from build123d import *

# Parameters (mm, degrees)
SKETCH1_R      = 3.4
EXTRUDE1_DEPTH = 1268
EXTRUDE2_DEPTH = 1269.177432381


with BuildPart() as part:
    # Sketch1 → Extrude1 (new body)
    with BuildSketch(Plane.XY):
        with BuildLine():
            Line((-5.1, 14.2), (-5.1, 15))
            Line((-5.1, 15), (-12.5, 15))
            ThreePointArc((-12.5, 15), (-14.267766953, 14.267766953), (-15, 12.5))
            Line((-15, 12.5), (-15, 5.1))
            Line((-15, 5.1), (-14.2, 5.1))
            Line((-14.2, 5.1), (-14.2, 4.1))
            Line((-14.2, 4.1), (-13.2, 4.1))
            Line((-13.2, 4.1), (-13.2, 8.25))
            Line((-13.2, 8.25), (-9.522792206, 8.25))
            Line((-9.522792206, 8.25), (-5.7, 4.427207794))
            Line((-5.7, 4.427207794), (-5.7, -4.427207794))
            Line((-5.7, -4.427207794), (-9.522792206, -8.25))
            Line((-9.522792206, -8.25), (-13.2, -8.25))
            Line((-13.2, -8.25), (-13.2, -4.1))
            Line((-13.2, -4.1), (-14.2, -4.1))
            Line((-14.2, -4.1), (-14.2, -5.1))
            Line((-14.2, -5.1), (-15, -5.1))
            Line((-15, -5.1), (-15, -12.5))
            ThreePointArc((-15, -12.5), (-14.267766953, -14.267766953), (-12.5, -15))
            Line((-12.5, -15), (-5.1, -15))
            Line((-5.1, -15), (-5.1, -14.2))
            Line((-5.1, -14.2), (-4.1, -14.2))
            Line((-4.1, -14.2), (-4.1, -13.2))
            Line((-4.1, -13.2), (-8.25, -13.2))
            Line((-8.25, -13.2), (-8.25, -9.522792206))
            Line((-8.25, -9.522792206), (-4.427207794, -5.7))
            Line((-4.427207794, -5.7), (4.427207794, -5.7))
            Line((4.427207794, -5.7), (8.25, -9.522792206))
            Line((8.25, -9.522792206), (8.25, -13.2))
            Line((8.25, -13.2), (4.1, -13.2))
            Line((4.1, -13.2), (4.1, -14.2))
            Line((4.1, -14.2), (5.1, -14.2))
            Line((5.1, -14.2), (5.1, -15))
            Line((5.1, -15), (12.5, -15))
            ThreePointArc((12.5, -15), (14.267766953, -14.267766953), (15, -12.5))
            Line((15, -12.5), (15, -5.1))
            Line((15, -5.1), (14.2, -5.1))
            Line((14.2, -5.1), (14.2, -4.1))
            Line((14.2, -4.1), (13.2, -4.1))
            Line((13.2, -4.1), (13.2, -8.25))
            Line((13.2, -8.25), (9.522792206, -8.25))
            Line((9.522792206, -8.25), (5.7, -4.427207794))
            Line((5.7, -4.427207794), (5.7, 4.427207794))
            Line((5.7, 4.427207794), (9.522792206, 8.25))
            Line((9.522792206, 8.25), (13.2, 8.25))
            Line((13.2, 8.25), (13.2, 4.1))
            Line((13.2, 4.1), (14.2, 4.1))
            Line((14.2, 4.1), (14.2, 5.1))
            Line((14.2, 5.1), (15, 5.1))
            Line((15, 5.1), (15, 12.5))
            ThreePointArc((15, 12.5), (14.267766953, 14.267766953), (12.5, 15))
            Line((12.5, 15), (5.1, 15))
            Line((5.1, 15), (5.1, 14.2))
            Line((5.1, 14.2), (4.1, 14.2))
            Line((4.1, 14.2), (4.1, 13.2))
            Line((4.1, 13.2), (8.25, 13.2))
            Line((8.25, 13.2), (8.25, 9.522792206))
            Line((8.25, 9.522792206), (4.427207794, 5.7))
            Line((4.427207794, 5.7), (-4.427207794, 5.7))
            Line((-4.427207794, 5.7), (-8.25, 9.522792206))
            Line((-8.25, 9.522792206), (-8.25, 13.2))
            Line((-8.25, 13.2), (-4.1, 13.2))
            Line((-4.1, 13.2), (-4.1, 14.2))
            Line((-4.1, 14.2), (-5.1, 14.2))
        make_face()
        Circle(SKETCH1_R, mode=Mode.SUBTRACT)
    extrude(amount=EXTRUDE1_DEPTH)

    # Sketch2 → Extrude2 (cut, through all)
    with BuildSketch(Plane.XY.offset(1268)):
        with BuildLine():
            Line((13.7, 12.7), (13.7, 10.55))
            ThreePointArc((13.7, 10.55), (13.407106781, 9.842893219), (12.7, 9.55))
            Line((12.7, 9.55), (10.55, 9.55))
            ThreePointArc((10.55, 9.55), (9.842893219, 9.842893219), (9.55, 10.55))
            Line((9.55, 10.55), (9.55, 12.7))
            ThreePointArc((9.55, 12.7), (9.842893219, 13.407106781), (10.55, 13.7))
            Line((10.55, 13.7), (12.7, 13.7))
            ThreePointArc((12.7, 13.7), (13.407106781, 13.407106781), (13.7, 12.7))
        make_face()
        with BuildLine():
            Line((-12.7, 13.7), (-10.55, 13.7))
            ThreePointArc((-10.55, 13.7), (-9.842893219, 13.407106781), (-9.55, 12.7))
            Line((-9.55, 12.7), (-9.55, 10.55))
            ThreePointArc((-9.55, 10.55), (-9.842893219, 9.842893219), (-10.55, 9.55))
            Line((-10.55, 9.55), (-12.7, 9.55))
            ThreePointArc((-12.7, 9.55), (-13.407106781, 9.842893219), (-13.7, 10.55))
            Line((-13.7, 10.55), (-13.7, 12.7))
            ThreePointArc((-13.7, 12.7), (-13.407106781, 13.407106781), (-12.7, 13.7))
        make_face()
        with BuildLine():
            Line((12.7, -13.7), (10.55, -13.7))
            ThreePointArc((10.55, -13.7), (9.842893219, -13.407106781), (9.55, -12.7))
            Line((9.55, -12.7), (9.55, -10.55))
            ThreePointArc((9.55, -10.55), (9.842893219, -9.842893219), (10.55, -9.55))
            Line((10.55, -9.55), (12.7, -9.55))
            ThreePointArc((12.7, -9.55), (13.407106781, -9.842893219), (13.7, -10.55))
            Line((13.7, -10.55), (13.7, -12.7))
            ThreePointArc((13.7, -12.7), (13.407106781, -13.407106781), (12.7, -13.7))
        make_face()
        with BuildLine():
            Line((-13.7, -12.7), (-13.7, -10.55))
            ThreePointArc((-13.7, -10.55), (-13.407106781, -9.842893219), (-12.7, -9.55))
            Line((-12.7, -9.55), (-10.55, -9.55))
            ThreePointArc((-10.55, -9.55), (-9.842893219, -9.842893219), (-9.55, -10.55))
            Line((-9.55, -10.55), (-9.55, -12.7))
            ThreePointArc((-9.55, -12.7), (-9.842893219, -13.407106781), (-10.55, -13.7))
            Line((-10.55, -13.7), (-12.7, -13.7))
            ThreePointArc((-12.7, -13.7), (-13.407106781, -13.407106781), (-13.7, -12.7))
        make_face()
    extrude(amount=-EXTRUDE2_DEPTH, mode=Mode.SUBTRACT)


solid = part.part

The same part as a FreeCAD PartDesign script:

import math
import FreeCAD as App
import Part
import Sketcher
from FreeCAD import Vector

doc = App.newDocument("Part")
body = doc.addObject("PartDesign::Body", "Body")

sketch1 = body.newObject("Sketcher::SketchObject", "Sketch")
sketch1.AttachmentSupport = (doc.getObject("XY_Plane"), [""])
sketch1.MapMode = "FlatFace"
sketch1.addGeometry([
    Part.LineSegment(Vector(-5.1, 14.2, 0), Vector(-5.1, 15, 0)),
    Part.LineSegment(Vector(-5.1, 15, 0), Vector(-12.5, 15, 0)),
    Part.ArcOfCircle(Part.Circle(Vector(-12.5, 12.5, 0), Vector(0, 0, 1), 2.5), math.radians(90), math.radians(180)),
    Part.LineSegment(Vector(-15, 12.5, 0), Vector(-15, 5.1, 0)),
    Part.LineSegment(Vector(-15, 5.1, 0), Vector(-14.2, 5.1, 0)),
    Part.LineSegment(Vector(-14.2, 5.1, 0), Vector(-14.2, 4.1, 0)),
    Part.LineSegment(Vector(-14.2, 4.1, 0), Vector(-13.2, 4.1, 0)),
    Part.LineSegment(Vector(-13.2, 4.1, 0), Vector(-13.2, 8.2, 0)),
    Part.LineSegment(Vector(-13.2, 8.2, 0), Vector(-9.5, 8.2, 0)),
    Part.LineSegment(Vector(-9.5, 8.2, 0), Vector(-5.7, 4.4, 0)),
    Part.LineSegment(Vector(-5.7, 4.4, 0), Vector(-5.7, -4.4, 0)),
    Part.LineSegment(Vector(-5.7, -4.4, 0), Vector(-9.5, -8.2, 0)),
    Part.LineSegment(Vector(-9.5, -8.2, 0), Vector(-13.2, -8.2, 0)),
    Part.LineSegment(Vector(-13.2, -8.2, 0), Vector(-13.2, -4.1, 0)),
    Part.LineSegment(Vector(-13.2, -4.1, 0), Vector(-14.2, -4.1, 0)),
    Part.LineSegment(Vector(-14.2, -4.1, 0), Vector(-14.2, -5.1, 0)),
    Part.LineSegment(Vector(-14.2, -5.1, 0), Vector(-15, -5.1, 0)),
    Part.LineSegment(Vector(-15, -5.1, 0), Vector(-15, -12.5, 0)),
    Part.ArcOfCircle(Part.Circle(Vector(-12.5, -12.5, 0), Vector(0, 0, 1), 2.5), math.radians(180), math.radians(270)),
    Part.LineSegment(Vector(-12.5, -15, 0), Vector(-5.1, -15, 0)),
    Part.LineSegment(Vector(-5.1, -15, 0), Vector(-5.1, -14.2, 0)),
    Part.LineSegment(Vector(-5.1, -14.2, 0), Vector(-4.1, -14.2, 0)),
    Part.LineSegment(Vector(-4.1, -14.2, 0), Vector(-4.1, -13.2, 0)),
    Part.LineSegment(Vector(-4.1, -13.2, 0), Vector(-8.2, -13.2, 0)),
    Part.LineSegment(Vector(-8.2, -13.2, 0), Vector(-8.2, -9.5, 0)),
    Part.LineSegment(Vector(-8.2, -9.5, 0), Vector(-4.4, -5.7, 0)),
    Part.LineSegment(Vector(-4.4, -5.7, 0), Vector(4.4, -5.7, 0)),
    Part.LineSegment(Vector(4.4, -5.7, 0), Vector(8.2, -9.5, 0)),
    Part.LineSegment(Vector(8.2, -9.5, 0), Vector(8.2, -13.2, 0)),
    Part.LineSegment(Vector(8.2, -13.2, 0), Vector(4.1, -13.2, 0)),
    Part.LineSegment(Vector(4.1, -13.2, 0), Vector(4.1, -14.2, 0)),
    Part.LineSegment(Vector(4.1, -14.2, 0), Vector(5.1, -14.2, 0)),
    Part.LineSegment(Vector(5.1, -14.2, 0), Vector(5.1, -15, 0)),
    Part.LineSegment(Vector(5.1, -15, 0), Vector(12.5, -15, 0)),
    Part.ArcOfCircle(Part.Circle(Vector(12.5, -12.5, 0), Vector(0, 0, 1), 2.5), math.radians(-90), math.radians(0)),
    Part.LineSegment(Vector(15, -12.5, 0), Vector(15, -5.1, 0)),
    Part.LineSegment(Vector(15, -5.1, 0), Vector(14.2, -5.1, 0)),
    Part.LineSegment(Vector(14.2, -5.1, 0), Vector(14.2, -4.1, 0)),
    Part.LineSegment(Vector(14.2, -4.1, 0), Vector(13.2, -4.1, 0)),
    Part.LineSegment(Vector(13.2, -4.1, 0), Vector(13.2, -8.2, 0)),
    Part.LineSegment(Vector(13.2, -8.2, 0), Vector(9.5, -8.2, 0)),
    Part.LineSegment(Vector(9.5, -8.2, 0), Vector(5.7, -4.4, 0)),
    Part.LineSegment(Vector(5.7, -4.4, 0), Vector(5.7, 4.4, 0)),
    Part.LineSegment(Vector(5.7, 4.4, 0), Vector(9.5, 8.2, 0)),
    Part.LineSegment(Vector(9.5, 8.2, 0), Vector(13.2, 8.2, 0)),
    Part.LineSegment(Vector(13.2, 8.2, 0), Vector(13.2, 4.1, 0)),
    Part.LineSegment(Vector(13.2, 4.1, 0), Vector(14.2, 4.1, 0)),
    Part.LineSegment(Vector(14.2, 4.1, 0), Vector(14.2, 5.1, 0)),
    Part.LineSegment(Vector(14.2, 5.1, 0), Vector(15, 5.1, 0)),
    Part.LineSegment(Vector(15, 5.1, 0), Vector(15, 12.5, 0)),
    Part.ArcOfCircle(Part.Circle(Vector(12.5, 12.5, 0), Vector(0, 0, 1), 2.5), math.radians(0), math.radians(90)),
    Part.LineSegment(Vector(12.5, 15, 0), Vector(5.1, 15, 0)),
    Part.LineSegment(Vector(5.1, 15, 0), Vector(5.1, 14.2, 0)),
    Part.LineSegment(Vector(5.1, 14.2, 0), Vector(4.1, 14.2, 0)),
    Part.LineSegment(Vector(4.1, 14.2, 0), Vector(4.1, 13.2, 0)),
    Part.LineSegment(Vector(4.1, 13.2, 0), Vector(8.2, 13.2, 0)),
    Part.LineSegment(Vector(8.2, 13.2, 0), Vector(8.2, 9.5, 0)),
    Part.LineSegment(Vector(8.2, 9.5, 0), Vector(4.4, 5.7, 0)),
    Part.LineSegment(Vector(4.4, 5.7, 0), Vector(-4.4, 5.7, 0)),
    Part.LineSegment(Vector(-4.4, 5.7, 0), Vector(-8.2, 9.5, 0)),
    Part.LineSegment(Vector(-8.2, 9.5, 0), Vector(-8.2, 13.2, 0)),
    Part.LineSegment(Vector(-8.2, 13.2, 0), Vector(-4.1, 13.2, 0)),
    Part.LineSegment(Vector(-4.1, 13.2, 0), Vector(-4.1, 14.2, 0)),
    Part.LineSegment(Vector(-4.1, 14.2, 0), Vector(-5.1, 14.2, 0)),
    Part.Circle(Vector(0, 0, 0), Vector(0, 0, 1), 3.4),
], False)
sketch1.addConstraint([
    Sketcher.Constraint("Coincident", 0, 2, 1, 1),
    Sketcher.Constraint("Tangent", 1, 2, 2, 1),
    Sketcher.Constraint("Tangent", 2, 2, 3, 1),
    Sketcher.Constraint("Coincident", 3, 2, 4, 1),
    Sketcher.Constraint("Coincident", 4, 2, 5, 1),
    Sketcher.Constraint("Coincident", 5, 2, 6, 1),
    Sketcher.Constraint("Coincident", 6, 2, 7, 1),
    Sketcher.Constraint("Coincident", 7, 2, 8, 1),
    Sketcher.Constraint("Coincident", 8, 2, 9, 1),
    Sketcher.Constraint("Coincident", 9, 2, 10, 1),
    Sketcher.Constraint("Coincident", 10, 2, 11, 1),
    Sketcher.Constraint("Coincident", 11, 2, 12, 1),
    Sketcher.Constraint("Coincident", 12, 2, 13, 1),
    Sketcher.Constraint("Coincident", 13, 2, 14, 1),
    Sketcher.Constraint("Coincident", 14, 2, 15, 1),
    Sketcher.Constraint("Coincident", 15, 2, 16, 1),
    Sketcher.Constraint("Coincident", 16, 2, 17, 1),
    Sketcher.Constraint("Tangent", 17, 2, 18, 1),
    Sketcher.Constraint("Tangent", 18, 2, 19, 1),
    Sketcher.Constraint("Coincident", 19, 2, 20, 1),
    Sketcher.Constraint("Coincident", 20, 2, 21, 1),
    Sketcher.Constraint("Coincident", 21, 2, 22, 1),
    Sketcher.Constraint("Coincident", 22, 2, 23, 1),
    Sketcher.Constraint("Coincident", 23, 2, 24, 1),
    Sketcher.Constraint("Coincident", 24, 2, 25, 1),
    Sketcher.Constraint("Coincident", 25, 2, 26, 1),
    Sketcher.Constraint("Coincident", 26, 2, 27, 1),
    Sketcher.Constraint("Coincident", 27, 2, 28, 1),
    Sketcher.Constraint("Coincident", 28, 2, 29, 1),
    Sketcher.Constraint("Coincident", 29, 2, 30, 1),
    Sketcher.Constraint("Coincident", 30, 2, 31, 1),
    Sketcher.Constraint("Coincident", 31, 2, 32, 1),
    Sketcher.Constraint("Coincident", 32, 2, 33, 1),
    Sketcher.Constraint("Tangent", 33, 2, 34, 1),
    Sketcher.Constraint("Tangent", 34, 2, 35, 1),
    Sketcher.Constraint("Coincident", 35, 2, 36, 1),
    Sketcher.Constraint("Coincident", 36, 2, 37, 1),
    Sketcher.Constraint("Coincident", 37, 2, 38, 1),
    Sketcher.Constraint("Coincident", 38, 2, 39, 1),
    Sketcher.Constraint("Coincident", 39, 2, 40, 1),
    Sketcher.Constraint("Coincident", 40, 2, 41, 1),
    Sketcher.Constraint("Coincident", 41, 2, 42, 1),
    Sketcher.Constraint("Coincident", 42, 2, 43, 1),
    Sketcher.Constraint("Coincident", 43, 2, 44, 1),
    Sketcher.Constraint("Coincident", 44, 2, 45, 1),
    Sketcher.Constraint("Coincident", 45, 2, 46, 1),
    Sketcher.Constraint("Coincident", 46, 2, 47, 1),
    Sketcher.Constraint("Coincident", 47, 2, 48, 1),
    Sketcher.Constraint("Coincident", 48, 2, 49, 1),
    Sketcher.Constraint("Tangent", 49, 2, 50, 1),
    Sketcher.Constraint("Tangent", 50, 2, 51, 1),
    Sketcher.Constraint("Coincident", 51, 2, 52, 1),
    Sketcher.Constraint("Coincident", 52, 2, 53, 1),
    Sketcher.Constraint("Coincident", 53, 2, 54, 1),
    Sketcher.Constraint("Coincident", 54, 2, 55, 1),
    Sketcher.Constraint("Coincident", 55, 2, 56, 1),
    Sketcher.Constraint("Coincident", 56, 2, 57, 1),
    Sketcher.Constraint("Coincident", 57, 2, 58, 1),
    Sketcher.Constraint("Coincident", 58, 2, 59, 1),
    Sketcher.Constraint("Coincident", 59, 2, 60, 1),
    Sketcher.Constraint("Coincident", 60, 2, 61, 1),
    Sketcher.Constraint("Coincident", 61, 2, 62, 1),
    Sketcher.Constraint("Coincident", 62, 2, 63, 1),
    Sketcher.Constraint("Coincident", 63, 2, 0, 1),
    Sketcher.Constraint("Vertical", 0),
    Sketcher.Constraint("Horizontal", 1),
    Sketcher.Constraint("Vertical", 3),
    Sketcher.Constraint("Horizontal", 4),
    Sketcher.Constraint("Vertical", 5),
    Sketcher.Constraint("Horizontal", 6),
    Sketcher.Constraint("Vertical", 7),
    Sketcher.Constraint("Horizontal", 8),
    Sketcher.Constraint("Vertical", 10),
    Sketcher.Constraint("Horizontal", 12),
    Sketcher.Constraint("Vertical", 13),
    Sketcher.Constraint("Horizontal", 14),
    Sketcher.Constraint("Vertical", 15),
    Sketcher.Constraint("Horizontal", 16),
    Sketcher.Constraint("Vertical", 17),
    Sketcher.Constraint("Horizontal", 19),
    Sketcher.Constraint("Vertical", 20),
    Sketcher.Constraint("Horizontal", 21),
    Sketcher.Constraint("Vertical", 22),
    Sketcher.Constraint("Horizontal", 23),
    Sketcher.Constraint("Vertical", 24),
    Sketcher.Constraint("Horizontal", 26),
    Sketcher.Constraint("Vertical", 28),
    Sketcher.Constraint("Horizontal", 29),
    Sketcher.Constraint("Vertical", 30),
    Sketcher.Constraint("Horizontal", 31),
    Sketcher.Constraint("Vertical", 32),
    Sketcher.Constraint("Horizontal", 33),
    Sketcher.Constraint("Vertical", 35),
    Sketcher.Constraint("Horizontal", 36),
    Sketcher.Constraint("Vertical", 37),
    Sketcher.Constraint("Horizontal", 38),
    Sketcher.Constraint("Vertical", 39),
    Sketcher.Constraint("Horizontal", 40),
    Sketcher.Constraint("Vertical", 42),
    Sketcher.Constraint("Horizontal", 44),
    Sketcher.Constraint("Vertical", 45),
    Sketcher.Constraint("Horizontal", 46),
    Sketcher.Constraint("Vertical", 47),
    Sketcher.Constraint("Horizontal", 48),
    Sketcher.Constraint("Vertical", 49),
    Sketcher.Constraint("Horizontal", 51),
    Sketcher.Constraint("Vertical", 52),
    Sketcher.Constraint("Horizontal", 53),
    Sketcher.Constraint("Vertical", 54),
    Sketcher.Constraint("Horizontal", 55),
    Sketcher.Constraint("Vertical", 56),
    Sketcher.Constraint("Horizontal", 58),
    Sketcher.Constraint("Vertical", 60),
    Sketcher.Constraint("Horizontal", 61),
    Sketcher.Constraint("Vertical", 62),
    Sketcher.Constraint("Horizontal", 63),
    Sketcher.Constraint("Coincident", 64, 3, -1, 1),
    Sketcher.Constraint("Equal", 2, 18),
    Sketcher.Constraint("Equal", 18, 34),
    Sketcher.Constraint("Equal", 34, 50),
    Sketcher.Constraint("Symmetric", 2, 3, 34, 3, -1, 1),
    Sketcher.Constraint("Symmetric", 18, 3, 50, 3, -1, 1),
    Sketcher.Constraint("Symmetric", 4, 2, 36, 2, -1, 1),
    Sketcher.Constraint("Symmetric", 6, 2, 38, 2, -1, 1),
    Sketcher.Constraint("Symmetric", 8, 2, 40, 2, -1, 1),
    Sketcher.Constraint("Symmetric", 9, 2, 41, 2, -1, 1),
    Sketcher.Constraint("Symmetric", 11, 2, 43, 2, -1, 1),
    Sketcher.Constraint("Symmetric", 13, 2, 45, 2, -1, 1),
    Sketcher.Constraint("Symmetric", 15, 2, 47, 2, -1, 1),
    Sketcher.Constraint("Symmetric", 20, 2, 52, 2, -1, 1),
    Sketcher.Constraint("Symmetric", 22, 2, 54, 2, -1, 1),
    Sketcher.Constraint("Symmetric", 24, 2, 56, 2, -1, 1),
    Sketcher.Constraint("Symmetric", 25, 2, 57, 2, -1, 1),
    Sketcher.Constraint("Symmetric", 27, 2, 59, 2, -1, 1),
    Sketcher.Constraint("Symmetric", 29, 2, 61, 2, -1, 1),
    Sketcher.Constraint("Symmetric", 31, 2, 63, 2, -1, 1),
    Sketcher.Constraint("Symmetric", 18, 3, 34, 3, -2),
    Sketcher.Constraint("Symmetric", 24, 2, 27, 2, -2),
    Sketcher.Constraint("Symmetric", 22, 2, 29, 2, -2),
    Sketcher.Constraint("Symmetric", 20, 2, 31, 2, -2),
    Sketcher.Constraint("Symmetric", 15, 2, 36, 2, -2),
    Sketcher.Constraint("Symmetric", 13, 2, 38, 2, -2),
    Sketcher.Constraint("Symmetric", 11, 2, 40, 2, -2),
    Sketcher.Constraint("Perpendicular", 9, 11),
    Sketcher.Constraint("Parallel", 11, 25),
    Sketcher.Constraint("Perpendicular", 25, 27),
    Sketcher.Constraint("Perpendicular", 41, 43),
    Sketcher.Constraint("Perpendicular", 57, 59),
    Sketcher.Constraint("Horizontal", 10, 2, 41, 2),
    Sketcher.Constraint("Equal", 14, 21),
    Sketcher.Constraint("Equal", 48, 0),
    Sketcher.Constraint("Equal", 51, 3),
    Sketcher.Constraint("Equal", 63, 5),
    Sketcher.Constraint("Equal", 61, 7),
    Sketcher.Constraint("Equal", 58, 10),
    Sketcher.Constraint("Equal", 15, 22),
    Sketcher.Constraint("Equal", 44, 24),
    Sketcher.Constraint("Equal", 11, 25),
    Sketcher.Constraint("Diameter", 64, 6.8),
    Sketcher.Constraint("Radius", 2, 2.5),
    Sketcher.Constraint("DistanceX", 6, 1, 6, 2, 1.0),
    Sketcher.Constraint("DistanceX", 1, 2, 1, 1, 7.4),
    Sketcher.Constraint("DistanceX", 4, 1, 4, 2, 0.8),
    Sketcher.Constraint("DistanceY", -1, 1, 0, 2, 15.0),
    Sketcher.Constraint("DistanceX", 23, 2, 23, 1, 4.15),
    Sketcher.Constraint("DistanceX", 9, 2, -1, 1, 5.7),
    Sketcher.Constraint("DistanceX", 8, 1, 8, 2, 3.677208),
])
pad1 = body.newObject("PartDesign::Pad", "Pad")
pad1.Profile = sketch1
pad1.Length = 1268

sketch2 = body.newObject("Sketcher::SketchObject", "Sketch001")
sketch2.AttachmentSupport = (doc.getObject("XY_Plane"), [""])
sketch2.MapMode = "FlatFace"
sketch2.AttachmentOffset = App.Placement(Vector(0, 0, 1268), App.Rotation())
sketch2.addGeometry([
    Part.LineSegment(Vector(13.7, 10.6, 0), Vector(13.7, 12.7, 0)),
    Part.ArcOfCircle(Part.Circle(Vector(12.7, 12.7, 0), Vector(0, 0, 1), 1), math.radians(0), math.radians(90)),
    Part.LineSegment(Vector(12.7, 13.7, 0), Vector(10.6, 13.7, 0)),
    Part.ArcOfCircle(Part.Circle(Vector(10.6, 12.7, 0), Vector(0, 0, 1), 1), math.radians(90), math.radians(180)),
    Part.LineSegment(Vector(9.6, 12.7, 0), Vector(9.6, 10.6, 0)),
    Part.ArcOfCircle(Part.Circle(Vector(10.6, 10.6, 0), Vector(0, 0, 1), 1), math.radians(-180), math.radians(-90)),
    Part.LineSegment(Vector(10.6, 9.6, 0), Vector(12.7, 9.6, 0)),
    Part.ArcOfCircle(Part.Circle(Vector(12.7, 10.6, 0), Vector(0, 0, 1), 1), math.radians(-90), math.radians(0)),
    Part.LineSegment(Vector(-10.6, 13.7, 0), Vector(-12.7, 13.7, 0)),
    Part.ArcOfCircle(Part.Circle(Vector(-12.7, 12.7, 0), Vector(0, 0, 1), 1), math.radians(90), math.radians(180)),
    Part.LineSegment(Vector(-13.7, 12.7, 0), Vector(-13.7, 10.6, 0)),
    Part.ArcOfCircle(Part.Circle(Vector(-12.7, 10.6, 0), Vector(0, 0, 1), 1), math.radians(-180), math.radians(-90)),
    Part.LineSegment(Vector(-12.7, 9.6, 0), Vector(-10.6, 9.6, 0)),
    Part.ArcOfCircle(Part.Circle(Vector(-10.6, 10.6, 0), Vector(0, 0, 1), 1), math.radians(-90), math.radians(0)),
    Part.LineSegment(Vector(-9.6, 10.6, 0), Vector(-9.6, 12.7, 0)),
    Part.ArcOfCircle(Part.Circle(Vector(-10.6, 12.7, 0), Vector(0, 0, 1), 1), math.radians(0), math.radians(90)),
    Part.LineSegment(Vector(10.6, -13.7, 0), Vector(12.7, -13.7, 0)),
    Part.ArcOfCircle(Part.Circle(Vector(12.7, -12.7, 0), Vector(0, 0, 1), 1), math.radians(-90), math.radians(0)),
    Part.LineSegment(Vector(13.7, -12.7, 0), Vector(13.7, -10.6, 0)),
    Part.ArcOfCircle(Part.Circle(Vector(12.7, -10.6, 0), Vector(0, 0, 1), 1), math.radians(0), math.radians(90)),
    Part.LineSegment(Vector(12.7, -9.6, 0), Vector(10.6, -9.6, 0)),
    Part.ArcOfCircle(Part.Circle(Vector(10.6, -10.6, 0), Vector(0, 0, 1), 1), math.radians(90), math.radians(180)),
    Part.LineSegment(Vector(9.6, -10.6, 0), Vector(9.6, -12.7, 0)),
    Part.ArcOfCircle(Part.Circle(Vector(10.6, -12.7, 0), Vector(0, 0, 1), 1), math.radians(-180), math.radians(-90)),
    Part.LineSegment(Vector(-13.7, -10.6, 0), Vector(-13.7, -12.7, 0)),
    Part.ArcOfCircle(Part.Circle(Vector(-12.7, -12.7, 0), Vector(0, 0, 1), 1), math.radians(-180), math.radians(-90)),
    Part.LineSegment(Vector(-12.7, -13.7, 0), Vector(-10.6, -13.7, 0)),
    Part.ArcOfCircle(Part.Circle(Vector(-10.6, -12.7, 0), Vector(0, 0, 1), 1), math.radians(-90), math.radians(0)),
    Part.LineSegment(Vector(-9.6, -12.7, 0), Vector(-9.6, -10.6, 0)),
    Part.ArcOfCircle(Part.Circle(Vector(-10.6, -10.6, 0), Vector(0, 0, 1), 1), math.radians(0), math.radians(90)),
    Part.LineSegment(Vector(-10.6, -9.6, 0), Vector(-12.7, -9.6, 0)),
    Part.ArcOfCircle(Part.Circle(Vector(-12.7, -10.6, 0), Vector(0, 0, 1), 1), math.radians(90), math.radians(180)),
], False)
sketch2.addConstraint([
    Sketcher.Constraint("Tangent", 0, 2, 1, 1),
    Sketcher.Constraint("Tangent", 1, 2, 2, 1),
    Sketcher.Constraint("Tangent", 2, 2, 3, 1),
    Sketcher.Constraint("Tangent", 3, 2, 4, 1),
    Sketcher.Constraint("Tangent", 4, 2, 5, 1),
    Sketcher.Constraint("Tangent", 5, 2, 6, 1),
    Sketcher.Constraint("Tangent", 6, 2, 7, 1),
    Sketcher.Constraint("Tangent", 7, 2, 0, 1),
    Sketcher.Constraint("Tangent", 8, 2, 9, 1),
    Sketcher.Constraint("Tangent", 9, 2, 10, 1),
    Sketcher.Constraint("Tangent", 10, 2, 11, 1),
    Sketcher.Constraint("Tangent", 11, 2, 12, 1),
    Sketcher.Constraint("Tangent", 12, 2, 13, 1),
    Sketcher.Constraint("Tangent", 13, 2, 14, 1),
    Sketcher.Constraint("Tangent", 14, 2, 15, 1),
    Sketcher.Constraint("Tangent", 15, 2, 8, 1),
    Sketcher.Constraint("Tangent", 16, 2, 17, 1),
    Sketcher.Constraint("Tangent", 17, 2, 18, 1),
    Sketcher.Constraint("Tangent", 18, 2, 19, 1),
    Sketcher.Constraint("Tangent", 19, 2, 20, 1),
    Sketcher.Constraint("Tangent", 20, 2, 21, 1),
    Sketcher.Constraint("Tangent", 21, 2, 22, 1),
    Sketcher.Constraint("Tangent", 22, 2, 23, 1),
    Sketcher.Constraint("Tangent", 23, 2, 16, 1),
    Sketcher.Constraint("Tangent", 24, 2, 25, 1),
    Sketcher.Constraint("Tangent", 25, 2, 26, 1),
    Sketcher.Constraint("Tangent", 26, 2, 27, 1),
    Sketcher.Constraint("Tangent", 27, 2, 28, 1),
    Sketcher.Constraint("Tangent", 28, 2, 29, 1),
    Sketcher.Constraint("Tangent", 29, 2, 30, 1),
    Sketcher.Constraint("Tangent", 30, 2, 31, 1),
    Sketcher.Constraint("Tangent", 31, 2, 24, 1),
    Sketcher.Constraint("Vertical", 0),
    Sketcher.Constraint("Horizontal", 2),
    Sketcher.Constraint("Vertical", 4),
    Sketcher.Constraint("Horizontal", 6),
    Sketcher.Constraint("Horizontal", 8),
    Sketcher.Constraint("Vertical", 10),
    Sketcher.Constraint("Horizontal", 12),
    Sketcher.Constraint("Vertical", 14),
    Sketcher.Constraint("Horizontal", 16),
    Sketcher.Constraint("Vertical", 18),
    Sketcher.Constraint("Horizontal", 20),
    Sketcher.Constraint("Vertical", 22),
    Sketcher.Constraint("Vertical", 24),
    Sketcher.Constraint("Horizontal", 26),
    Sketcher.Constraint("Vertical", 28),
    Sketcher.Constraint("Horizontal", 30),
    Sketcher.Constraint("Equal", 1, 3),
    Sketcher.Constraint("Equal", 3, 5),
    Sketcher.Constraint("Equal", 5, 7),
    Sketcher.Constraint("Equal", 7, 9),
    Sketcher.Constraint("Equal", 9, 11),
    Sketcher.Constraint("Equal", 11, 13),
    Sketcher.Constraint("Equal", 13, 15),
    Sketcher.Constraint("Equal", 15, 17),
    Sketcher.Constraint("Equal", 17, 19),
    Sketcher.Constraint("Equal", 19, 21),
    Sketcher.Constraint("Equal", 21, 23),
    Sketcher.Constraint("Equal", 23, 25),
    Sketcher.Constraint("Equal", 25, 27),
    Sketcher.Constraint("Equal", 27, 29),
    Sketcher.Constraint("Equal", 29, 31),
    Sketcher.Constraint("Symmetric", 9, 3, 17, 3, -1, 1),
    Sketcher.Constraint("Symmetric", 13, 3, 21, 3, -1, 1),
    Sketcher.Constraint("Symmetric", 1, 3, 25, 3, -1, 1),
    Sketcher.Constraint("Symmetric", 5, 3, 29, 3, -1, 1),
    Sketcher.Constraint("Symmetric", 1, 3, 9, 3, -2),
    Sketcher.Constraint("Symmetric", 5, 3, 13, 3, -2),
    Sketcher.Constraint("Equal", 30, 0),
    Sketcher.Constraint("Radius", 1, 1.0),
    Sketcher.Constraint("DistanceX", 2, 2, 2, 1, 2.15),
    Sketcher.Constraint("DistanceX", -1, 1, 1, 3, 12.7),
    Sketcher.Constraint("DistanceY", -1, 1, 1, 3, 12.7),
])
pocket1 = body.newObject("PartDesign::Pocket", "Pocket")
pocket1.Profile = sketch2
pocket1.Type = "ThroughAll"

doc.recompute()
